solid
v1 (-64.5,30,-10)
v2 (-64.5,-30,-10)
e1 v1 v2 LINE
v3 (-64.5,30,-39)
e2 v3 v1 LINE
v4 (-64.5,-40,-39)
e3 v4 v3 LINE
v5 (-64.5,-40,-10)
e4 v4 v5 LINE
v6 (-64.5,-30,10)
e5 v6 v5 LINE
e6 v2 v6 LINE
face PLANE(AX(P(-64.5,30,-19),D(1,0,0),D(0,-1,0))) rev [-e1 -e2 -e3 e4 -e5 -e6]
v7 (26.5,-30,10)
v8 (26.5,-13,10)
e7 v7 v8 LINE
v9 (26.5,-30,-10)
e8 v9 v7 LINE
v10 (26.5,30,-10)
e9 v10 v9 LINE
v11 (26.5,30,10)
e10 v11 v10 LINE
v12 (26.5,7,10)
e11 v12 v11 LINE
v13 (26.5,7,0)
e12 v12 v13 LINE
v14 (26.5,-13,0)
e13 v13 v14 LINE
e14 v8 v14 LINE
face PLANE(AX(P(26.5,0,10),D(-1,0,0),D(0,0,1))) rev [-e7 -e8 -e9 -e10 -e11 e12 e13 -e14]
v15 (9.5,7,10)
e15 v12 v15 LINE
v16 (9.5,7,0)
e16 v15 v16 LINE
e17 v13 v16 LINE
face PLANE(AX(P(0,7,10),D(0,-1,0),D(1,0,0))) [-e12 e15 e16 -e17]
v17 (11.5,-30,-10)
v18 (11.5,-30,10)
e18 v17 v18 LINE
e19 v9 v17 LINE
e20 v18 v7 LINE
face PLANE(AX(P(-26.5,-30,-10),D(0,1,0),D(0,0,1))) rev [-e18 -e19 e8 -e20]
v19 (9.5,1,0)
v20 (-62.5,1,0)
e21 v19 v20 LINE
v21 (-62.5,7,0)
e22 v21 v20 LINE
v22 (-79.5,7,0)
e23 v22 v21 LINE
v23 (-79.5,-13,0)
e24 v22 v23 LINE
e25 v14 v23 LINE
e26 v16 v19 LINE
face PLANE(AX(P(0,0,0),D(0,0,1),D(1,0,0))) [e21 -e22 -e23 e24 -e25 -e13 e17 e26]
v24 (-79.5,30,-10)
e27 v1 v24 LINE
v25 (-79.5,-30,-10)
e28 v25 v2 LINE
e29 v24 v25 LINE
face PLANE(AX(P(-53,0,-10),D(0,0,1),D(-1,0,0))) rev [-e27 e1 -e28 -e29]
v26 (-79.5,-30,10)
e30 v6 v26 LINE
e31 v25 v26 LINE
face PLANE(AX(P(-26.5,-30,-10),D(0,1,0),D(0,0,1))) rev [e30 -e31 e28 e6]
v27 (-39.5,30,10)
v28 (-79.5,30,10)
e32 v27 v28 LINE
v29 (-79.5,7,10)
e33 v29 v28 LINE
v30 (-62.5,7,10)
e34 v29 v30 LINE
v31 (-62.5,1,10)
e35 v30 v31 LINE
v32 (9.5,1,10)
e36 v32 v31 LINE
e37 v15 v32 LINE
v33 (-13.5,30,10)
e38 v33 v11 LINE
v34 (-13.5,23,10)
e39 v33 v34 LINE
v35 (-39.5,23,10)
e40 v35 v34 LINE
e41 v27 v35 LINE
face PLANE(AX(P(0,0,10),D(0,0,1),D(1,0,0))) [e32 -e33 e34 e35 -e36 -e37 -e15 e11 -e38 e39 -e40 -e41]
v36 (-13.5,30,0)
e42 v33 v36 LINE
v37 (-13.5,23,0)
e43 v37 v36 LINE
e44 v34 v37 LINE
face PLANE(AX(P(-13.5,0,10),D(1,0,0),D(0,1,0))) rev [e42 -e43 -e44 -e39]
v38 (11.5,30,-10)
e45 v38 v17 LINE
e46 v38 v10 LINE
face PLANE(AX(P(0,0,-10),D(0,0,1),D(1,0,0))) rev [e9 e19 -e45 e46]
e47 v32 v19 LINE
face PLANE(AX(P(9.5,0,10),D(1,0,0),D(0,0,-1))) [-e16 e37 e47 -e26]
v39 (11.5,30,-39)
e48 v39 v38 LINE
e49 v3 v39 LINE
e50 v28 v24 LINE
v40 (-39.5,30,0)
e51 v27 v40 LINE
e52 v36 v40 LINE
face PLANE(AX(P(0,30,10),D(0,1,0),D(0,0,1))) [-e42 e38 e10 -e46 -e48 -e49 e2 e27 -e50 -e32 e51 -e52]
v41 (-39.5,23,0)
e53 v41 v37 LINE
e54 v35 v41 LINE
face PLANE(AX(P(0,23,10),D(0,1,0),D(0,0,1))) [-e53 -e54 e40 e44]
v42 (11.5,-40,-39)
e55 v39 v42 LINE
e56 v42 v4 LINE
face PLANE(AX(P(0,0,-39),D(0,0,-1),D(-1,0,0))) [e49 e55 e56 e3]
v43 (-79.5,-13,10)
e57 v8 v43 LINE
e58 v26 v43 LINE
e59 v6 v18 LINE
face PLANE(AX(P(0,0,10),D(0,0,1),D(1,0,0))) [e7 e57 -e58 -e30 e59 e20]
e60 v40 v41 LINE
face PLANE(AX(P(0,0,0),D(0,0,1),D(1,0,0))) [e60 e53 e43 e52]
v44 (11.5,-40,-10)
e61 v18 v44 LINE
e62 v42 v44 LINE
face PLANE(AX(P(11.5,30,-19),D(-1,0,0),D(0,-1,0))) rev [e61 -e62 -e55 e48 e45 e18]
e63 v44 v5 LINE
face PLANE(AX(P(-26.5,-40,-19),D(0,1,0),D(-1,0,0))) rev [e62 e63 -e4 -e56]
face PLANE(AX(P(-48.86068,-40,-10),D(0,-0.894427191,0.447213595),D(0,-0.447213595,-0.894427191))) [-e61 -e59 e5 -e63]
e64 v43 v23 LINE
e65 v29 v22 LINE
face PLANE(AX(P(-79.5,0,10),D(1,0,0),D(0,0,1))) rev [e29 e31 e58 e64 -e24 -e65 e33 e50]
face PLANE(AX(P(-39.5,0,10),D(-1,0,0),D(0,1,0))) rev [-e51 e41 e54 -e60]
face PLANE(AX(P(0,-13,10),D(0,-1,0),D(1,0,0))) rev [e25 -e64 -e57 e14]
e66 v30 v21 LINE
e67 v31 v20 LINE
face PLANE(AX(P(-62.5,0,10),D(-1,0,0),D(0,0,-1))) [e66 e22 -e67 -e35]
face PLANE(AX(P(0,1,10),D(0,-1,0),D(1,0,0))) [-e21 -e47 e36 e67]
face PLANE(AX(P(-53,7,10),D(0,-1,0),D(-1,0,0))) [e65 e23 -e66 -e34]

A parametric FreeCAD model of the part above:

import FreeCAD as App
import Part
import Sketcher
Q = App.Units.Quantity


def add_polygon(sketch, points):
    """Adds a closed chain of lines whose ends are joined by coincident constraints."""
    first, n = sketch.GeometryCount, len(points)
    for a, b in zip(points, points[1:] + points[:1]):
        sketch.addGeometry(Part.LineSegment(App.Vector(*a, 0), App.Vector(*b, 0)), False)
    for i in range(n):
        sketch.addConstraint(Sketcher.Constraint("Coincident", first + i, 2, first + (i + 1) % n, 1))

doc = App.newDocument("Part")
body = doc.addObject("PartDesign::Body", "Body")

sketch1 = doc.addObject("Sketcher::SketchObject", "Sketch")
body.addObject(sketch1)
sketch1.AttachmentSupport = (doc.XY_Plane, [""])
sketch1.MapMode = "FlatFace"
add_polygon(sketch1, [(-26.5, 23), (-26.5, 1), (9.5, 1), (9.5, 7), (26.5, 7), (26.5, 30), (-13.5, 30), (-13.5, 23)])
sketch1.addConstraint([
    Sketcher.Constraint("Vertical", 0),
    Sketcher.Constraint("Horizontal", 1),
    Sketcher.Constraint("Vertical", 2),
    Sketcher.Constraint("Horizontal", 3),
    Sketcher.Constraint("Vertical", 4),
    Sketcher.Constraint("Horizontal", 5),
    Sketcher.Constraint("Vertical", 6),
    Sketcher.Constraint("Horizontal", 7),
    Sketcher.Constraint("DistanceX", 1, 1, 1, 2, Q("36 mm")),
    Sketcher.Constraint("DistanceX", 3, 1, 3, 2, Q("17 mm")),
    Sketcher.Constraint("DistanceX", 5, 2, 5, 1, Q("40 mm")),
    Sketcher.Constraint("DistanceY", 0, 2, 0, 1, Q("22 mm")),
    Sketcher.Constraint("DistanceY", 2, 1, 2, 2, Q("6 mm")),
    Sketcher.Constraint("DistanceY", 4, 1, 4, 2, Q("23 mm")),
    Sketcher.Constraint("DistanceY", -1, 1, 0, 2, Q("1 mm")),
    Sketcher.Constraint("DistanceX", 0, 2, -1, 1, Q("26.5 mm")),
])
pad1 = doc.addObject("PartDesign::Pad", "Pad")
body.addObject(pad1)
pad1.Profile = sketch1
pad1.Length = 10
body2 = doc.addObject("PartDesign::Body", "Body001")

sketch2 = doc.addObject("Sketcher::SketchObject", "Sketch001")
body2.addObject(sketch2)
sketch2.AttachmentSupport = (doc.getObject("XY_Plane001"), [""])
sketch2.MapMode = "FlatFace"
add_polygon(sketch2, [(-26.5, -13), (-26.5, -30), (26.5, -30), (26.5, -13)])
sketch2.addConstraint([
    Sketcher.Constraint("Vertical", 0),
    Sketcher.Constraint("Horizontal", 1),
    Sketcher.Constraint("Vertical", 2),
    Sketcher.Constraint("Horizontal", 3),
    Sketcher.Constraint("DistanceX", 1, 1, 1, 2, Q("53 mm")),
    Sketcher.Constraint("DistanceY", 0, 2, 0, 1, Q("17 mm")),
    Sketcher.Constraint("DistanceY", 0, 2, -1, 1, Q("30 mm")),
    Sketcher.Constraint("DistanceX", 0, 2, -1, 1, Q("26.5 mm")),
])
pad2 = doc.addObject("PartDesign::Pad", "Pad001")
body2.addObject(pad2)
pad2.Profile = sketch2
pad2.Length = 10
body.AllowCompound = True
doc.recompute()

boolean = doc.addObject("PartDesign::Boolean", "Boolean")
body.addObject(boolean)
boolean.Type = "Fuse"
boolean.addObjects([body2])

sketch3 = doc.addObject("Sketcher::SketchObject", "Sketch002")
body.addObject(sketch3)
sketch3.AttachmentSupport = (doc.XY_Plane, [""])
sketch3.MapMode = "FlatFace"
add_polygon(sketch3, [(26.5, 30), (26.5, -30), (-26.5, -30), (-26.5, 23), (-13.5, 23), (-13.5, 30)])
sketch3.addConstraint([
    Sketcher.Constraint("Vertical", 0),
    Sketcher.Constraint("Horizontal", 1),
    Sketcher.Constraint("Vertical", 2),
    Sketcher.Constraint("Horizontal", 3),
    Sketcher.Constraint("Vertical", 4),
    Sketcher.Constraint("Horizontal", 5),
    Sketcher.Constraint("Symmetric", 1, 2, 5, 2, -1, 1),
    Sketcher.Constraint("Equal", 1, 2),
    Sketcher.Constraint("DistanceX", 1, 2, 1, 1, Q("53 mm")),
    Sketcher.Constraint("DistanceX", 3, 1, 3, 2, Q("13 mm")),
    Sketcher.Constraint("DistanceY", 0, 2, 0, 1, Q("60 mm")),
])
pad3 = doc.addObject("PartDesign::Pad", "Pad002")
body.addObject(pad3)
pad3.Profile = sketch3
pad3.Length = 10
pad3.Reversed = True

sketch4 = doc.addObject("Sketcher::SketchObject", "Sketch003")
body.addObject(sketch4)
sketch4.AttachmentSupport = (doc.XY_Plane, [""])
sketch4.MapMode = "FlatFace"
sketch4.AttachmentOffset = App.Placement(App.Vector(0, 0, -10), App.Rotation())
add_polygon(sketch4, [(11.5, 30), (11.5, -40), (-26.5, -40), (-26.5, 30)])
sketch4.addConstraint([
    Sketcher.Constraint("Vertical", 0),
    Sketcher.Constraint("Horizontal", 1),
    Sketcher.Constraint("Vertical", 2),
    Sketcher.Constraint("Horizontal", 3),
    Sketcher.Constraint("DistanceX", 1, 2, 1, 1, Q("38 mm")),
    Sketcher.Constraint("DistanceY", 0, 2, 0, 1, Q("70 mm")),
    Sketcher.Constraint("DistanceY", 0, 2, -1, 1, Q("40 mm")),
    Sketcher.Constraint("DistanceX", -1, 1, 0, 2, Q("11.5 mm")),
])
pad4 = doc.addObject("PartDesign::Pad", "Pad003")
body.addObject(pad4)
pad4.Profile = sketch4
pad4.Length = 9
pad4.Reversed = True

sketch5 = doc.addObject("Sketcher::SketchObject", "Sketch004")
body.addObject(sketch5)
sketch5.AttachmentSupport = (doc.YZ_Plane, [""])
sketch5.MapMode = "FlatFace"
sketch5.AttachmentOffset = App.Placement(App.Vector(0, 0, 11.5), App.Rotation())
add_polygon(sketch5, [(-30, 10), (-40, -10), (-30, -10)])
sketch5.addConstraint([
    Sketcher.Constraint("Horizontal", 1),
    Sketcher.Constraint("Vertical", 2),
    Sketcher.Constraint("DistanceX", 1, 1, 1, 2, Q("10 mm")),
    Sketcher.Constraint("DistanceY", 2, 1, 2, 2, Q("20 mm")),
    Sketcher.Constraint("DistanceX", 0, 2, -1, 1, Q("40 mm")),
    Sketcher.Constraint("DistanceY", 0, 2, -1, 1, Q("10 mm")),
])
pad5 = doc.addObject("PartDesign::Pad", "Pad004")
body.addObject(pad5)
pad5.Profile = sketch5
pad5.Length = 38
pad5.Reversed = True
body3 = doc.addObject("PartDesign::Body", "Body002")
doc.recompute()

body3.BaseFeature = body
doc.recompute()

mirroring = doc.addObject("Part::Mirroring", "Mirroring")
mirroring.Source = body
mirroring.Base = App.Vector(-26.5, 0, 10)
mirroring.Normal = App.Vector(-1, 0, 0)
body4 = doc.addObject("PartDesign::Body", "Body003")
body4.BaseFeature = mirroring
boolean2 = doc.addObject("PartDesign::Boolean", "Boolean001")
body3.addObject(boolean2)
boolean2.Type = "Fuse"
boolean2.addObjects([body4])
doc.recompute()

sketch6 = doc.addObject("Sketcher::SketchObject", "Sketch005")
body3.addObject(sketch6)
sketch6.AttachmentSupport = (doc.getObject("XY_Plane002"), [""])
sketch6.MapMode = "FlatFace"
sketch6.AttachmentOffset = App.Placement(App.Vector(0, 0, -10), App.Rotation())
add_polygon(sketch6, [(-39.5, 30), (-39.5, 23), (-13.5, 23), (-13.5, 30)])
sketch6.addConstraint([
    Sketcher.Constraint("Vertical", 0),
    Sketcher.Constraint("Horizontal", 1),
    Sketcher.Constraint("Vertical", 2),
    Sketcher.Constraint("Horizontal", 3),
    Sketcher.Constraint("DistanceX", 1, 1, 1, 2, Q("26 mm")),
    Sketcher.Constraint("DistanceY", 0, 2, 0, 1, Q("7 mm")),
    Sketcher.Constraint("DistanceY", -1, 1, 0, 2, Q("23 mm")),
    Sketcher.Constraint("DistanceX", 0, 2, -1, 1, Q("39.5 mm")),
])
pad6 = doc.addObject("PartDesign::Pad", "Pad005")
body3.addObject(pad6)
pad6.Profile = sketch6
pad6.Length = 10

sketch7 = doc.addObject("Sketcher::SketchObject", "Sketch006")
body3.addObject(sketch7)
sketch7.AttachmentSupport = (doc.getObject("XY_Plane002"), [""])
sketch7.MapMode = "FlatFace"
sketch7.AttachmentOffset = App.Placement(App.Vector(0, 0, -19), App.Rotation())
add_polygon(sketch7, [(11.5, 30), (11.5, -40), (-64.5, -40), (-64.5, 30)])
sketch7.addConstraint([
    Sketcher.Constraint("Vertical", 0),
    Sketcher.Constraint("Horizontal", 1),
    Sketcher.Constraint("Vertical", 2),
    Sketcher.Constraint("Horizontal", 3),
    Sketcher.Constraint("DistanceX", 1, 2, 1, 1, Q("76 mm")),
    Sketcher.Constraint("DistanceY", 0, 2, 0, 1, Q("70 mm")),
    Sketcher.Constraint("DistanceY", 0, 2, -1, 1, Q("40 mm")),
    Sketcher.Constraint("DistanceX", -1, 1, 0, 2, Q("11.5 mm")),
])
pad7 = doc.addObject("PartDesign::Pad", "Pad006")
body3.addObject(pad7)
pad7.Profile = sketch7
pad7.Length = 20
pad7.Reversed = True
mirroring.Visibility = False

doc.recompute()
